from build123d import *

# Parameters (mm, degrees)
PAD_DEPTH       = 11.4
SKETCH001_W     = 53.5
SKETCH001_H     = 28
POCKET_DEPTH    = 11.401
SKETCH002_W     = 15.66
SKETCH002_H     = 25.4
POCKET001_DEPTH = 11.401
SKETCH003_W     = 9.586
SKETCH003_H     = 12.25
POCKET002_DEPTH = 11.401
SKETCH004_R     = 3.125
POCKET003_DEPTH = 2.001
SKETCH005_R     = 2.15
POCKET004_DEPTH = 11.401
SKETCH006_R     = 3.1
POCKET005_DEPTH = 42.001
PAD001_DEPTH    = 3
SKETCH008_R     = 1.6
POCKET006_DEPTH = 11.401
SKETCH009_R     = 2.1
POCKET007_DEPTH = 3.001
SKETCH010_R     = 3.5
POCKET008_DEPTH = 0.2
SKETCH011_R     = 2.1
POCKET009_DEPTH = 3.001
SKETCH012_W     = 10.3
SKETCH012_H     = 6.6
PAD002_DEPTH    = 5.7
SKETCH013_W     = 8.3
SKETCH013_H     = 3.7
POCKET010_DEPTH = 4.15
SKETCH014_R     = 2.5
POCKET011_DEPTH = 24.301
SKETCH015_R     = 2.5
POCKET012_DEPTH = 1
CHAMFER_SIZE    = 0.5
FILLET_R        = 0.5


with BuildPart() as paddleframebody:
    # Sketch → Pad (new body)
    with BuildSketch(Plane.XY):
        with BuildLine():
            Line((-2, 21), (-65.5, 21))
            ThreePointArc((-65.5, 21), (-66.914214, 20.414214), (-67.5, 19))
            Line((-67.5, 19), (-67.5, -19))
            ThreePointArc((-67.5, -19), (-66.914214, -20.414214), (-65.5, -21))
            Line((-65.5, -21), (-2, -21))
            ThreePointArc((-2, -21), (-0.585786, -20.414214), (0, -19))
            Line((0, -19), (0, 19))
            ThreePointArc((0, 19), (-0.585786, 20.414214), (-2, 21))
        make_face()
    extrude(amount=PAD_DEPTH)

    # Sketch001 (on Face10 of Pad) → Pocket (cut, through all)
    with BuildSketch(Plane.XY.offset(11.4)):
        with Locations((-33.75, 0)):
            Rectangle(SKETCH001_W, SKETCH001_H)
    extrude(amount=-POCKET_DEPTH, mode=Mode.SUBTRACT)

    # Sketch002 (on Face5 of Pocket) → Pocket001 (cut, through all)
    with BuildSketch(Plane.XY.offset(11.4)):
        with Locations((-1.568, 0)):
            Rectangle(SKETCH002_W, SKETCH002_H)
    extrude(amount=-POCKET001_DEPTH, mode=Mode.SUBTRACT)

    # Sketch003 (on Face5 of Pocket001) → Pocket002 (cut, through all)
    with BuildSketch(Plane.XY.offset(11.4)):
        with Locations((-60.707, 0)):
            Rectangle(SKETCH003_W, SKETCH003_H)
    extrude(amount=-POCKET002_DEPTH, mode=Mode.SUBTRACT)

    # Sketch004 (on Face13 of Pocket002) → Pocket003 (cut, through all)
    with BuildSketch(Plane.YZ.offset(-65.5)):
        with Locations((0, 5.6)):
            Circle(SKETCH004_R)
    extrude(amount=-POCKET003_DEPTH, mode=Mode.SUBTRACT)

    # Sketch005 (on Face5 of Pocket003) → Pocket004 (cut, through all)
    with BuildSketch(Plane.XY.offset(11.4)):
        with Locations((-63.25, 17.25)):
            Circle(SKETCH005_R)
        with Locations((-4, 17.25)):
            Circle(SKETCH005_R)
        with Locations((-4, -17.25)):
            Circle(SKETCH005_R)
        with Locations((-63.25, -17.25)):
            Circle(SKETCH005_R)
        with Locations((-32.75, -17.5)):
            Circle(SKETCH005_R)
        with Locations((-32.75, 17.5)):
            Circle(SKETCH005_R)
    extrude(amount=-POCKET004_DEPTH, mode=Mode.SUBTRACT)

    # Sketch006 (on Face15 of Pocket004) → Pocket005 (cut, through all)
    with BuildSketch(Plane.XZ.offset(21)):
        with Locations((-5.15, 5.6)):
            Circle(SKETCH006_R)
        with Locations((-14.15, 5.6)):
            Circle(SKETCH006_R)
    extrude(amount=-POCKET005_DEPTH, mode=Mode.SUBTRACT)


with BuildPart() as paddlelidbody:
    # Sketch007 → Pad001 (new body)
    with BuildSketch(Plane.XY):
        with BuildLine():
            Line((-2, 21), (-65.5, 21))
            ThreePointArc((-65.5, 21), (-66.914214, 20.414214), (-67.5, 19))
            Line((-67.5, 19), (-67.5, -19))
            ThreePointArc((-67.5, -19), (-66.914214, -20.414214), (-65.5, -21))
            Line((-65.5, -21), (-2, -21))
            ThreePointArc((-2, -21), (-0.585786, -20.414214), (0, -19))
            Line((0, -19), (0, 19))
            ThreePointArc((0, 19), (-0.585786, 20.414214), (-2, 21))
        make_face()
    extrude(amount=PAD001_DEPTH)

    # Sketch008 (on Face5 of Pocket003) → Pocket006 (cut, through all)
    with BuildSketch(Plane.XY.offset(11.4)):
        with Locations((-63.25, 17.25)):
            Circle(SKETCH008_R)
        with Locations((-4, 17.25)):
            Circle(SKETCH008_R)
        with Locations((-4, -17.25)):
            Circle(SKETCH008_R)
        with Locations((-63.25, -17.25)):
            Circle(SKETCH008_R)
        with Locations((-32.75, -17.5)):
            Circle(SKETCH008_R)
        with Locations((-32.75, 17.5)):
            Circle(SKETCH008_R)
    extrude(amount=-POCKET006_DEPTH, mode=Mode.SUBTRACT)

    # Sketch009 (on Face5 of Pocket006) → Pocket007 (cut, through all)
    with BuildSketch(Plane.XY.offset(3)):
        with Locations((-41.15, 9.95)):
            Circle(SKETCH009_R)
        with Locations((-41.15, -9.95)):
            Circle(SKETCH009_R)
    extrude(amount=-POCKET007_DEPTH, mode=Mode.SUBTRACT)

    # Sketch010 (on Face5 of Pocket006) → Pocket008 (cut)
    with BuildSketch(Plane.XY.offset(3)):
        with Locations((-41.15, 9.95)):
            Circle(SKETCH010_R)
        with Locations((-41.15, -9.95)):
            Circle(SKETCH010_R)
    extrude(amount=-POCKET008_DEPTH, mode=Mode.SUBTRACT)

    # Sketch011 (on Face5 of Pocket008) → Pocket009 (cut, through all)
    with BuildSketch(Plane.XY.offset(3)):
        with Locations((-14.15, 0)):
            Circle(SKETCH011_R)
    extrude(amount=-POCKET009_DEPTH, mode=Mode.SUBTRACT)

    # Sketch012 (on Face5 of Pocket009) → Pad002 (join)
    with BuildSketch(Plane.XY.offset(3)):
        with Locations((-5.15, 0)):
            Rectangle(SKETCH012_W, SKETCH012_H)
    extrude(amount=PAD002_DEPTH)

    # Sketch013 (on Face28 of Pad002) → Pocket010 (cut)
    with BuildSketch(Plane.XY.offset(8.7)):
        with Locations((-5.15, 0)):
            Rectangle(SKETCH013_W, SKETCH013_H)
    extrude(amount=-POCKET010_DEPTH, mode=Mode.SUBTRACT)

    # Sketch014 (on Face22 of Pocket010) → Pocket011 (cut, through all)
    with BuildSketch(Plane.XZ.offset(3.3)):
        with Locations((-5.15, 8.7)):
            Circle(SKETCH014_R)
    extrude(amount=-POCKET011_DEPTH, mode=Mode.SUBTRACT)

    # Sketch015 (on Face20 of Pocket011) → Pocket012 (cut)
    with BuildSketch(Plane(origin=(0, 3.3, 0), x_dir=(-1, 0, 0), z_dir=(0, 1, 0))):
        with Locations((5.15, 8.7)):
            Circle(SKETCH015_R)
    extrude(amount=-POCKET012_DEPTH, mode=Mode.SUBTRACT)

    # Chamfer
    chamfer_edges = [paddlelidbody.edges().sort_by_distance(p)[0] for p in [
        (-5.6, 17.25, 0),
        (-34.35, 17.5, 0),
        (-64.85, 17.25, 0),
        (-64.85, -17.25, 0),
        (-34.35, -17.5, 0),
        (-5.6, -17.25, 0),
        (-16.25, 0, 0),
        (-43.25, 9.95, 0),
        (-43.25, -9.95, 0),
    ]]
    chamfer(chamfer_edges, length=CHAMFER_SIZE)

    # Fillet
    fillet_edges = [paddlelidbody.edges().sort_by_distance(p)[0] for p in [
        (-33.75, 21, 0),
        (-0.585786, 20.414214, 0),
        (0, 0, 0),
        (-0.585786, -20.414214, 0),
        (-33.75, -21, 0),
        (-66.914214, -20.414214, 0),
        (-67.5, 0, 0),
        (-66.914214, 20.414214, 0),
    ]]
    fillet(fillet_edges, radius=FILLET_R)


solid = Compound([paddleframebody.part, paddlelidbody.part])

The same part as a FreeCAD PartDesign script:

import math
import FreeCAD as App
import Part
import Sketcher
from FreeCAD import Vector


def edges_at(feature, points):
    """Names of the edges that pass closest to the given points."""
    edges = feature.Shape.Edges
    near = lambda p: min(range(len(edges)), key=lambda i: edges[i].distToShape(Part.Vertex(*p))[0])
    return sorted({f"Edge{near(p) + 1}" for p in points})

doc = App.newDocument("Part")
body = doc.addObject("PartDesign::Body", "Body")

# Sketch on XY plane
sketch1 = body.newObject("Sketcher::SketchObject", "Sketch")
sketch1.AttachmentSupport = (doc.getObject("XY_Plane"), [""])
sketch1.MapMode = "FlatFace"
sketch1.addGeometry([
    Part.LineSegment(Vector(-2, 21, 0), Vector(-65.5, 21, 0)),  # 0
    Part.ArcOfCircle(Part.Circle(Vector(-65.5, 19, 0), Vector(0, 0, 1), 2), math.radians(90), math.radians(180)),  # 1
    Part.LineSegment(Vector(-67.5, 19, 0), Vector(-67.5, -19, 0)),  # 2
    Part.ArcOfCircle(Part.Circle(Vector(-65.5, -19, 0), Vector(0, 0, 1), 2), math.radians(180), math.radians(270)),  # 3
    Part.LineSegment(Vector(-65.5, -21, 0), Vector(-2, -21, 0)),  # 4
    Part.ArcOfCircle(Part.Circle(Vector(-2, -19, 0), Vector(0, 0, 1), 2), math.radians(-90), math.radians(0)),  # 5
    Part.LineSegment(Vector(0, -19, 0), Vector(0, 19, 0)),  # 6
    Part.ArcOfCircle(Part.Circle(Vector(-2, 19, 0), Vector(0, 0, 1), 2), math.radians(0), math.radians(90)),  # 7
], False)
sketch1.addConstraint([
    Sketcher.Constraint("Tangent", 0, 2, 1, 1),
    Sketcher.Constraint("Tangent", 1, 2, 2, 1),
    Sketcher.Constraint("Tangent", 2, 2, 3, 1),
    Sketcher.Constraint("Tangent", 3, 2, 4, 1),
    Sketcher.Constraint("Tangent", 4, 2, 5, 1),
    Sketcher.Constraint("Tangent", 5, 2, 6, 1),
    Sketcher.Constraint("Tangent", 6, 2, 7, 1),
    Sketcher.Constraint("Tangent", 7, 2, 0, 1),
    Sketcher.Constraint("Horizontal", 0),
    Sketcher.Constraint("Vertical", 2),
    Sketcher.Constraint("Horizontal", 4),
    Sketcher.Constraint("Vertical", 6),
    Sketcher.Constraint("Equal", 1, 3),
    Sketcher.Constraint("Equal", 3, 5),
    Sketcher.Constraint("Equal", 5, 7),
    Sketcher.Constraint("Symmetric", 5, 2, 6, 2, -1, 1),
    Sketcher.Constraint("Radius", 1, 1.999999),
    Sketcher.Constraint("DistanceY", 2, 2, 2, 1, 38.0),
    Sketcher.Constraint("DistanceX", 0, 2, 0, 1, 63.5),
])
pad1 = body.newObject("PartDesign::Pad", "Pad")
pad1.Profile = sketch1
pad1.Length = 11.4

# Sketch on XY plane
sketch2 = body.newObject("Sketcher::SketchObject", "Sketch001")
sketch2.AttachmentSupport = (doc.getObject("XY_Plane"), [""])
sketch2.MapMode = "FlatFace"
sketch2.AttachmentOffset = App.Placement(Vector(0, 0, 11.4), App.Rotation())
sketch2.addGeometry([
    Part.LineSegment(Vector(-60, 14, 0), Vector(-60, -14, 0)),
    Part.LineSegment(Vector(-60, -14, 0), Vector(-7, -14, 0)),
    Part.LineSegment(Vector(-7, -14, 0), Vector(-7, 14, 0)),
    Part.LineSegment(Vector(-7, 14, 0), Vector(-60, 14, 0)),
], False)
sketch2.addConstraint([
    Sketcher.Constraint("Coincident", 0, 2, 1, 1),
    Sketcher.Constraint("Coincident", 1, 2, 2, 1),
    Sketcher.Constraint("Coincident", 2, 2, 3, 1),
    Sketcher.Constraint("Coincident", 3, 2, 0, 1),
    Sketcher.Constraint("Vertical", 0),
    Sketcher.Constraint("Horizontal", 1),
    Sketcher.Constraint("Vertical", 2),
    Sketcher.Constraint("Horizontal", 3),
    Sketcher.Constraint("DistanceY", 0, 2, 0, 1, 28.0),
    Sketcher.Constraint("DistanceX", 1, 1, 1, 2, 53.5),
    Sketcher.Constraint("DistanceY", 0, 2, -1, 1, 14.0),
    Sketcher.Constraint("DistanceX", 1, 2, -1, 1, 7.0),
])
pocket1 = body.newObject("PartDesign::Pocket", "Pocket")
pocket1.Profile = sketch2
pocket1.Type = "ThroughAll"

# Sketch on XY plane
sketch3 = body.newObject("Sketcher::SketchObject", "Sketch002")
sketch3.AttachmentSupport = (doc.getObject("XY_Plane"), [""])
sketch3.MapMode = "FlatFace"
sketch3.AttachmentOffset = App.Placement(Vector(0, 0, 11.4), App.Rotation())
sketch3.addGeometry([
    Part.LineSegment(Vector(-9, 13, 0), Vector(-9, -13, 0)),
    Part.LineSegment(Vector(-9, -13, 0), Vector(6, -13, 0)),
    Part.LineSegment(Vector(6, -13, 0), Vector(6, 13, 0)),
    Part.LineSegment(Vector(6, 13, 0), Vector(-9, 13, 0)),
], False)
sketch3.addConstraint([
    Sketcher.Constraint("Coincident", 0, 2, 1, 1),
    Sketcher.Constraint("Coincident", 1, 2, 2, 1),
    Sketcher.Constraint("Coincident", 2, 2, 3, 1),
    Sketcher.Constraint("Coincident", 3, 2, 0, 1),
    Sketcher.Constraint("Vertical", 0),
    Sketcher.Constraint("Horizontal", 1),
    Sketcher.Constraint("Vertical", 2),
    Sketcher.Constraint("Horizontal", 3),
    Sketcher.Constraint("DistanceY", 0, 2, 0, 1, 25.4),
    Sketcher.Constraint("DistanceX", 1, 1, 1, 2, 15.66),
    Sketcher.Constraint("DistanceY", 0, 2, -1, 1, 12.7),
    Sketcher.Constraint("DistanceX", 0, 2, -1, 1, 9.398),
])
pocket2 = body.newObject("PartDesign::Pocket", "Pocket001")
pocket2.Profile = sketch3
pocket2.Type = "ThroughAll"

# Sketch on XY plane
sketch4 = body.newObject("Sketcher::SketchObject", "Sketch003")
sketch4.AttachmentSupport = (doc.getObject("XY_Plane"), [""])
sketch4.MapMode = "FlatFace"
sketch4.AttachmentOffset = App.Placement(Vector(0, 0, 11.4), App.Rotation())
sketch4.addGeometry([
    Part.LineSegment(Vector(-66, 6, 0), Vector(-66, -6, 0)),
    Part.LineSegment(Vector(-66, -6, 0), Vector(-56, -6, 0)),
    Part.LineSegment(Vector(-56, -6, 0), Vector(-56, 6, 0)),
    Part.LineSegment(Vector(-56, 6, 0), Vector(-66, 6, 0)),
], False)
sketch4.addConstraint([
    Sketcher.Constraint("Coincident", 0, 2, 1, 1),
    Sketcher.Constraint("Coincident", 1, 2, 2, 1),
    Sketcher.Constraint("Coincident", 2, 2, 3, 1),
    Sketcher.Constraint("Coincident", 3, 2, 0, 1),
    Sketcher.Constraint("Vertical", 0),
    Sketcher.Constraint("Horizontal", 1),
    Sketcher.Constraint("Vertical", 2),
    Sketcher.Constraint("Horizontal", 3),
    Sketcher.Constraint("DistanceY", 0, 2, 0, 1, 12.25),
    Sketcher.Constraint("DistanceX", 0, 2, -1, 1, 65.5),
    Sketcher.Constraint("DistanceX", 1, 1, 1, 2, 9.586),
    Sketcher.Constraint("DistanceY", 0, 2, -1, 1, 6.125),
])
pocket3 = body.newObject("PartDesign::Pocket", "Pocket002")
pocket3.Profile = sketch4
pocket3.Type = "ThroughAll"

# Sketch on YZ plane
sketch5 = body.newObject("Sketcher::SketchObject", "Sketch004")
sketch5.AttachmentSupport = (doc.getObject("YZ_Plane"), [""])
sketch5.MapMode = "FlatFace"
sketch5.AttachmentOffset = App.Placement(Vector(0, 0, -65.5), App.Rotation())
sketch5.addGeometry(Part.Circle(Vector(0, 5.6, 0), Vector(0, 0, 1), 3.1), False)
sketch5.addConstraint([
    Sketcher.Constraint("PointOnObject", 0, 3, -2),
    Sketcher.Constraint("Diameter", 0, 6.25),
    Sketcher.Constraint("DistanceY", -1, 1, 0, 3, 5.6),
])
pocket4 = body.newObject("PartDesign::Pocket", "Pocket003")
pocket4.Profile = sketch5
pocket4.Type = "ThroughAll"

# Sketch on XY plane
sketch6 = body.newObject("Sketcher::SketchObject", "Sketch005")
sketch6.AttachmentSupport = (doc.getObject("XY_Plane"), [""])
sketch6.MapMode = "FlatFace"
sketch6.AttachmentOffset = App.Placement(Vector(0, 0, 11.4), App.Rotation())
sketch6.addGeometry([
    Part.Circle(Vector(-63.2, 17.2, 0), Vector(0, 0, 1), 2.1),  # 0
    Part.Circle(Vector(-4, 17.2, 0), Vector(0, 0, 1), 2.1),  # 1
    Part.Circle(Vector(-4, -17.2, 0), Vector(0, 0, 1), 2.1),  # 2
    Part.Circle(Vector(-63.2, -17.2, 0), Vector(0, 0, 1), 2.1),  # 3
    Part.Circle(Vector(-32.8, -17.5, 0), Vector(0, 0, 1), 2.1),  # 4
    Part.Circle(Vector(-32.8, 17.5, 0), Vector(0, 0, 1), 2.1),  # 5
], False)
sketch6.addConstraint([
    Sketcher.Constraint("Equal", 0, 1),
    Sketcher.Constraint("Equal", 1, 2),
    Sketcher.Constraint("Equal", 2, 3),
    Sketcher.Constraint("Equal", 3, 4),
    Sketcher.Constraint("Equal", 4, 5),
    Sketcher.Constraint("Symmetric", 1, 3, 2, 3, -1),
    Sketcher.Constraint("Symmetric", 0, 3, 3, 3, -1),
    Sketcher.Constraint("Symmetric", 4, 3, 5, 3, -1),
    Sketcher.Constraint("Horizontal", 0, 3, 1, 3),
    Sketcher.Constraint("Diameter", 0, 4.3),
    Sketcher.Constraint("DistanceX", 1, 3, -1, 1, 4.0),
    Sketcher.Constraint("DistanceY", 4, 3, 5, 3, 35.0),
    Sketcher.Constraint("DistanceY", 2, 3, 1, 3, 34.5),
    Sketcher.Constraint("DistanceX", 3, 3, 4, 3, 30.5),
    Sketcher.Constraint("DistanceX", 0, 3, -1, 1, 63.25),
])
pocket5 = body.newObject("PartDesign::Pocket", "Pocket004")
pocket5.Profile = sketch6
pocket5.Type = "ThroughAll"

# Sketch on XZ plane
sketch7 = body.newObject("Sketcher::SketchObject", "Sketch006")
sketch7.AttachmentSupport = (doc.getObject("XZ_Plane"), [""])
sketch7.MapMode = "FlatFace"
sketch7.AttachmentOffset = App.Placement(Vector(0, 0, 21), App.Rotation())
sketch7.addGeometry([
    Part.Circle(Vector(-5.2, 5.6, 0), Vector(0, 0, 1), 3.1),
    Part.Circle(Vector(-14.2, 5.6, 0), Vector(0, 0, 1), 3.1),
], False)
sketch7.addConstraint([
    Sketcher.Constraint("Equal", 0, 1),
    Sketcher.Constraint("Horizontal", 0, 3, 1, 3),
    Sketcher.Constraint("Diameter", 0, 6.2),
    Sketcher.Constraint("DistanceX", 1, 3, 0, 3, 9.0),
    Sketcher.Constraint("DistanceY", -1, 1, 0, 3, 5.6),
    Sketcher.Constraint("DistanceX", 0, 3, -1, 1, 5.15),
])
pocket6 = body.newObject("PartDesign::Pocket", "Pocket005")
pocket6.Profile = sketch7
pocket6.Type = "ThroughAll"
body2 = doc.addObject("PartDesign::Body", "Body001")

# Sketch on XY plane
sketch8 = body2.newObject("Sketcher::SketchObject", "Sketch007")
sketch8.AttachmentSupport = (doc.getObject("XY_Plane001"), [""])
sketch8.MapMode = "FlatFace"
sketch8.addGeometry([
    Part.LineSegment(Vector(-2, 21, 0), Vector(-65.5, 21, 0)),  # 0
    Part.ArcOfCircle(Part.Circle(Vector(-65.5, 19, 0), Vector(0, 0, 1), 2), math.radians(90), math.radians(180)),  # 1
    Part.LineSegment(Vector(-67.5, 19, 0), Vector(-67.5, -19, 0)),  # 2
    Part.ArcOfCircle(Part.Circle(Vector(-65.5, -19, 0), Vector(0, 0, 1), 2), math.radians(180), math.radians(270)),  # 3
    Part.LineSegment(Vector(-65.5, -21, 0), Vector(-2, -21, 0)),  # 4
    Part.ArcOfCircle(Part.Circle(Vector(-2, -19, 0), Vector(0, 0, 1), 2), math.radians(-90), math.radians(0)),  # 5
    Part.LineSegment(Vector(0, -19, 0), Vector(0, 19, 0)),  # 6
    Part.ArcOfCircle(Part.Circle(Vector(-2, 19, 0), Vector(0, 0, 1), 2), math.radians(0), math.radians(90)),  # 7
], False)
sketch8.addConstraint([
    Sketcher.Constraint("Tangent", 0, 2, 1, 1),
    Sketcher.Constraint("Tangent", 1, 2, 2, 1),
    Sketcher.Constraint("Tangent", 2, 2, 3, 1),
    Sketcher.Constraint("Tangent", 3, 2, 4, 1),
    Sketcher.Constraint("Tangent", 4, 2, 5, 1),
    Sketcher.Constraint("Tangent", 5, 2, 6, 1),
    Sketcher.Constraint("Tangent", 6, 2, 7, 1),
    Sketcher.Constraint("Tangent", 7, 2, 0, 1),
    Sketcher.Constraint("Horizontal", 0),
    Sketcher.Constraint("Vertical", 2),
    Sketcher.Constraint("Horizontal", 4),
    Sketcher.Constraint("Vertical", 6),
    Sketcher.Constraint("Equal", 1, 3),
    Sketcher.Constraint("Equal", 3, 5),
    Sketcher.Constraint("Equal", 5, 7),
    Sketcher.Constraint("Symmetric", 5, 2, 6, 2, -1, 1),
    Sketcher.Constraint("Radius", 1, 1.999999),
    Sketcher.Constraint("DistanceY", 2, 2, 2, 1, 38.0),
    Sketcher.Constraint("DistanceX", 0, 2, 0, 1, 63.5),
])
pad2 = body2.newObject("PartDesign::Pad", "Pad001")
pad2.Profile = sketch8
pad2.Length = 3

# Sketch on XY plane
sketch9 = body2.newObject("Sketcher::SketchObject", "Sketch008")
sketch9.AttachmentSupport = (doc.getObject("XY_Plane001"), [""])
sketch9.MapMode = "FlatFace"
sketch9.AttachmentOffset = App.Placement(Vector(0, 0, 11.4), App.Rotation())
sketch9.addGeometry([
    Part.Circle(Vector(-63.2, 17.2, 0), Vector(0, 0, 1), 1.6),  # 0
    Part.Circle(Vector(-4, 17.2, 0), Vector(0, 0, 1), 1.6),  # 1
    Part.Circle(Vector(-4, -17.2, 0), Vector(0, 0, 1), 1.6),  # 2
    Part.Circle(Vector(-63.2, -17.2, 0), Vector(0, 0, 1), 1.6),  # 3
    Part.Circle(Vector(-32.8, -17.5, 0), Vector(0, 0, 1), 1.6),  # 4
    Part.Circle(Vector(-32.8, 17.5, 0), Vector(0, 0, 1), 1.6),  # 5
], False)
sketch9.addConstraint([
    Sketcher.Constraint("Equal", 0, 1),
    Sketcher.Constraint("Equal", 1, 2),
    Sketcher.Constraint("Equal", 2, 3),
    Sketcher.Constraint("Equal", 3, 4),
    Sketcher.Constraint("Equal", 4, 5),
    Sketcher.Constraint("Symmetric", 1, 3, 2, 3, -1),
    Sketcher.Constraint("Symmetric", 0, 3, 3, 3, -1),
    Sketcher.Constraint("Symmetric", 4, 3, 5, 3, -1),
    Sketcher.Constraint("Horizontal", 0, 3, 1, 3),
    Sketcher.Constraint("Diameter", 0, 3.2),
    Sketcher.Constraint("DistanceX", 1, 3, -1, 1, 4.0),
    Sketcher.Constraint("DistanceY", 4, 3, 5, 3, 35.0),
    Sketcher.Constraint("DistanceY", 2, 3, 1, 3, 34.5),
    Sketcher.Constraint("DistanceX", 3, 3, 4, 3, 30.5),
    Sketcher.Constraint("DistanceX", 0, 3, -1, 1, 63.25),
])
pocket7 = body2.newObject("PartDesign::Pocket", "Pocket006")
pocket7.Profile = sketch9
pocket7.Type = "ThroughAll"

# Sketch on XY plane
sketch10 = body2.newObject("Sketcher::SketchObject", "Sketch009")
sketch10.AttachmentSupport = (doc.getObject("XY_Plane001"), [""])
sketch10.MapMode = "FlatFace"
sketch10.AttachmentOffset = App.Placement(Vector(0, 0, 3), App.Rotation())
sketch10.addGeometry([
    Part.Circle(Vector(-41.1, 9.9, 0), Vector(0, 0, 1), 2.1),
    Part.Circle(Vector(-41.1, -9.9, 0), Vector(0, 0, 1), 2.1),
], False)
sketch10.addConstraint([
    Sketcher.Constraint("Equal", 0, 1),
    Sketcher.Constraint("Symmetric", 0, 3, 1, 3, -1),
    Sketcher.Constraint("Diameter", 0, 4.2),
    Sketcher.Constraint("DistanceY", 1, 3, 0, 3, 19.9),
    Sketcher.Constraint("DistanceX", 0, 3, -1, 1, 41.15),
])
pocket8 = body2.newObject("PartDesign::Pocket", "Pocket007")
pocket8.Profile = sketch10
pocket8.Type = "ThroughAll"

# Sketch on XY plane
sketch11 = body2.newObject("Sketcher::SketchObject", "Sketch010")
sketch11.AttachmentSupport = (doc.getObject("XY_Plane001"), [""])
sketch11.MapMode = "FlatFace"
sketch11.AttachmentOffset = App.Placement(Vector(0, 0, 3), App.Rotation())
sketch11.addGeometry([
    Part.Circle(Vector(-41.1, 9.9, 0), Vector(0, 0, 1), 3.5),
    Part.Circle(Vector(-41.1, -9.9, 0), Vector(0, 0, 1), 3.5),
], False)
sketch11.addConstraint([
    Sketcher.Constraint("Equal", 0, 1),
    Sketcher.Constraint("Symmetric", 0, 3, 1, 3, -1),
    Sketcher.Constraint("Diameter", 0, 7.0),
    Sketcher.Constraint("DistanceY", 1, 3, 0, 3, 19.9),
    Sketcher.Constraint("DistanceX", 0, 3, -1, 1, 41.15),
])
pocket9 = body2.newObject("PartDesign::Pocket", "Pocket008")
pocket9.Profile = sketch11
pocket9.Length = 0.2

# Sketch on XY plane
sketch12 = body2.newObject("Sketcher::SketchObject", "Sketch011")
sketch12.AttachmentSupport = (doc.getObject("XY_Plane001"), [""])
sketch12.MapMode = "FlatFace"
sketch12.AttachmentOffset = App.Placement(Vector(0, 0, 3), App.Rotation())
sketch12.addGeometry(Part.Circle(Vector(-14.2, 0, 0), Vector(0, 0, 1), 2.1), False)
sketch12.addConstraint([
    Sketcher.Constraint("PointOnObject", 0, 3, -1),
    Sketcher.Constraint("Diameter", 0, 4.2),
    Sketcher.Constraint("DistanceX", 0, 3, -1, 1, 14.15),
])
pocket10 = body2.newObject("PartDesign::Pocket", "Pocket009")
pocket10.Profile = sketch12
pocket10.Type = "ThroughAll"

# Sketch on XY plane
sketch13 = body2.newObject("Sketcher::SketchObject", "Sketch012")
sketch13.AttachmentSupport = (doc.getObject("XY_Plane001"), [""])
sketch13.MapMode = "FlatFace"
sketch13.AttachmentOffset = App.Placement(Vector(0, 0, 3), App.Rotation())
sketch13.addGeometry([
    Part.LineSegment(Vector(-10, 3, 0), Vector(-10, -3, 0)),
    Part.LineSegment(Vector(-10, -3, 0), Vector(0, -3, 0)),
    Part.LineSegment(Vector(0, -3, 0), Vector(0, 3, 0)),
    Part.LineSegment(Vector(0, 3, 0), Vector(-10, 3, 0)),
], False)
sketch13.addConstraint([
    Sketcher.Constraint("Coincident", 0, 2, 1, 1),
    Sketcher.Constraint("Coincident", 1, 2, 2, 1),
    Sketcher.Constraint("Coincident", 2, 2, 3, 1),
    Sketcher.Constraint("Coincident", 3, 2, 0, 1),
    Sketcher.Constraint("Vertical", 0),
    Sketcher.Constraint("Horizontal", 1),
    Sketcher.Constraint("Vertical", 2),
    Sketcher.Constraint("Horizontal", 3),
    Sketcher.Constraint("Symmetric", 1, 2, 2, 2, -1, 1),
    Sketcher.Constraint("DistanceX", 1, 1, 1, 2, 10.3),
    Sketcher.Constraint("DistanceY", 0, 2, 0, 1, 6.6),
])
pad3 = body2.newObject("PartDesign::Pad", "Pad002")
pad3.Profile = sketch13
pad3.Length = 5.7

# Sketch on XY plane
sketch14 = body2.newObject("Sketcher::SketchObject", "Sketch013")
sketch14.AttachmentSupport = (doc.getObject("XY_Plane001"), [""])
sketch14.MapMode = "FlatFace"
sketch14.AttachmentOffset = App.Placement(Vector(0, 0, 8.7), App.Rotation())
sketch14.addGeometry([
    Part.LineSegment(Vector(-9.3, 1.9, 0), Vector(-9.3, -1.9, 0)),
    Part.LineSegment(Vector(-9.3, -1.9, 0), Vector(-1, -1.9, 0)),
    Part.LineSegment(Vector(-1, -1.9, 0), Vector(-1, 1.9, 0)),
    Part.LineSegment(Vector(-1, 1.9, 0), Vector(-9.3, 1.9, 0)),
], False)
sketch14.addConstraint([
    Sketcher.Constraint("Coincident", 0, 2, 1, 1),
    Sketcher.Constraint("Coincident", 1, 2, 2, 1),
    Sketcher.Constraint("Coincident", 2, 2, 3, 1),
    Sketcher.Constraint("Coincident", 3, 2, 0, 1),
    Sketcher.Constraint("Vertical", 0),
    Sketcher.Constraint("Horizontal", 1),
    Sketcher.Constraint("Vertical", 2),
    Sketcher.Constraint("Horizontal", 3),
    Sketcher.Constraint("DistanceX", 1, 1, 1, 2, 8.3),
    Sketcher.Constraint("DistanceY", 0, 2, 0, 1, 3.7),
    Sketcher.Constraint("DistanceX", 1, 2, -1, 1, 1.0),
    Sketcher.Constraint("DistanceY", 0, 2, -1, 1, 1.85),
])
pocket11 = body2.newObject("PartDesign::Pocket", "Pocket010")
pocket11.Profile = sketch14
pocket11.Length = 4.15

# Sketch on XZ plane
sketch15 = body2.newObject("Sketcher::SketchObject", "Sketch014")
sketch15.AttachmentSupport = (doc.getObject("XZ_Plane001"), [""])
sketch15.MapMode = "FlatFace"
sketch15.AttachmentOffset = App.Placement(Vector(0, 0, 3.3), App.Rotation())
sketch15.addGeometry(Part.Circle(Vector(-5.2, 8.7, 0), Vector(0, 0, 1), 2.5), False)
sketch15.addConstraint([
    Sketcher.Constraint("Diameter", 0, 5.0),
    Sketcher.Constraint("DistanceY", -1, 1, 0, 3, 8.7),
    Sketcher.Constraint("DistanceX", 0, 3, -1, 1, 5.15),
])
pocket12 = body2.newObject("PartDesign::Pocket", "Pocket011")
pocket12.Profile = sketch15
pocket12.Type = "ThroughAll"

# Sketch on XZ plane
sketch16 = body2.newObject("Sketcher::SketchObject", "Sketch015")
sketch16.AttachmentSupport = (doc.getObject("XZ_Plane001"), [""])
sketch16.MapMode = "FlatFace"
sketch16.AttachmentOffset = App.Placement(Vector(0, 0, -3.3), App.Rotation())
sketch16.addGeometry(Part.Circle(Vector(-5.2, 8.7, 0), Vector(0, 0, 1), 2.5), False)
sketch16.addConstraint([
    Sketcher.Constraint("Diameter", 0, 5.0),
    Sketcher.Constraint("DistanceY", -1, 1, 0, 3, 8.7),
    Sketcher.Constraint("DistanceX", 0, 3, -1, 1, 5.15),
])
pocket13 = body2.newObject("PartDesign::Pocket", "Pocket012")
pocket13.Profile = sketch16
pocket13.Length = 1
pocket13.Reversed = True
doc.recompute()

chamfer = body2.newObject("PartDesign::Chamfer", "Chamfer")
chamfer.Base = (pocket13, edges_at(pocket13, [
    (-5.6, 17.25, 0),
    (-34.35, 17.5, 0),
    (-64.85, 17.25, 0),
    (-64.85, -17.25, 0),
    (-34.35, -17.5, 0),
    (-5.6, -17.25, 0),
    (-16.25, 0, 0),
    (-43.25, 9.95, 0),
    (-43.25, -9.95, 0),
]))
chamfer.Size = 0.5
doc.recompute()

fillet = body2.newObject("PartDesign::Fillet", "Fillet")
fillet.Base = (chamfer, edges_at(chamfer, [
    (-33.75, 21, 0),
    (-0.586, 20.414, 0),
    (0, 0, 0),
    (-0.586, -20.414, 0),
    (-33.75, -21, 0),
    (-66.914, -20.414, 0),
    (-67.5, 0, 0),
    (-66.914, 20.414, 0),
]))
fillet.Radius = 0.5

doc.recompute()
